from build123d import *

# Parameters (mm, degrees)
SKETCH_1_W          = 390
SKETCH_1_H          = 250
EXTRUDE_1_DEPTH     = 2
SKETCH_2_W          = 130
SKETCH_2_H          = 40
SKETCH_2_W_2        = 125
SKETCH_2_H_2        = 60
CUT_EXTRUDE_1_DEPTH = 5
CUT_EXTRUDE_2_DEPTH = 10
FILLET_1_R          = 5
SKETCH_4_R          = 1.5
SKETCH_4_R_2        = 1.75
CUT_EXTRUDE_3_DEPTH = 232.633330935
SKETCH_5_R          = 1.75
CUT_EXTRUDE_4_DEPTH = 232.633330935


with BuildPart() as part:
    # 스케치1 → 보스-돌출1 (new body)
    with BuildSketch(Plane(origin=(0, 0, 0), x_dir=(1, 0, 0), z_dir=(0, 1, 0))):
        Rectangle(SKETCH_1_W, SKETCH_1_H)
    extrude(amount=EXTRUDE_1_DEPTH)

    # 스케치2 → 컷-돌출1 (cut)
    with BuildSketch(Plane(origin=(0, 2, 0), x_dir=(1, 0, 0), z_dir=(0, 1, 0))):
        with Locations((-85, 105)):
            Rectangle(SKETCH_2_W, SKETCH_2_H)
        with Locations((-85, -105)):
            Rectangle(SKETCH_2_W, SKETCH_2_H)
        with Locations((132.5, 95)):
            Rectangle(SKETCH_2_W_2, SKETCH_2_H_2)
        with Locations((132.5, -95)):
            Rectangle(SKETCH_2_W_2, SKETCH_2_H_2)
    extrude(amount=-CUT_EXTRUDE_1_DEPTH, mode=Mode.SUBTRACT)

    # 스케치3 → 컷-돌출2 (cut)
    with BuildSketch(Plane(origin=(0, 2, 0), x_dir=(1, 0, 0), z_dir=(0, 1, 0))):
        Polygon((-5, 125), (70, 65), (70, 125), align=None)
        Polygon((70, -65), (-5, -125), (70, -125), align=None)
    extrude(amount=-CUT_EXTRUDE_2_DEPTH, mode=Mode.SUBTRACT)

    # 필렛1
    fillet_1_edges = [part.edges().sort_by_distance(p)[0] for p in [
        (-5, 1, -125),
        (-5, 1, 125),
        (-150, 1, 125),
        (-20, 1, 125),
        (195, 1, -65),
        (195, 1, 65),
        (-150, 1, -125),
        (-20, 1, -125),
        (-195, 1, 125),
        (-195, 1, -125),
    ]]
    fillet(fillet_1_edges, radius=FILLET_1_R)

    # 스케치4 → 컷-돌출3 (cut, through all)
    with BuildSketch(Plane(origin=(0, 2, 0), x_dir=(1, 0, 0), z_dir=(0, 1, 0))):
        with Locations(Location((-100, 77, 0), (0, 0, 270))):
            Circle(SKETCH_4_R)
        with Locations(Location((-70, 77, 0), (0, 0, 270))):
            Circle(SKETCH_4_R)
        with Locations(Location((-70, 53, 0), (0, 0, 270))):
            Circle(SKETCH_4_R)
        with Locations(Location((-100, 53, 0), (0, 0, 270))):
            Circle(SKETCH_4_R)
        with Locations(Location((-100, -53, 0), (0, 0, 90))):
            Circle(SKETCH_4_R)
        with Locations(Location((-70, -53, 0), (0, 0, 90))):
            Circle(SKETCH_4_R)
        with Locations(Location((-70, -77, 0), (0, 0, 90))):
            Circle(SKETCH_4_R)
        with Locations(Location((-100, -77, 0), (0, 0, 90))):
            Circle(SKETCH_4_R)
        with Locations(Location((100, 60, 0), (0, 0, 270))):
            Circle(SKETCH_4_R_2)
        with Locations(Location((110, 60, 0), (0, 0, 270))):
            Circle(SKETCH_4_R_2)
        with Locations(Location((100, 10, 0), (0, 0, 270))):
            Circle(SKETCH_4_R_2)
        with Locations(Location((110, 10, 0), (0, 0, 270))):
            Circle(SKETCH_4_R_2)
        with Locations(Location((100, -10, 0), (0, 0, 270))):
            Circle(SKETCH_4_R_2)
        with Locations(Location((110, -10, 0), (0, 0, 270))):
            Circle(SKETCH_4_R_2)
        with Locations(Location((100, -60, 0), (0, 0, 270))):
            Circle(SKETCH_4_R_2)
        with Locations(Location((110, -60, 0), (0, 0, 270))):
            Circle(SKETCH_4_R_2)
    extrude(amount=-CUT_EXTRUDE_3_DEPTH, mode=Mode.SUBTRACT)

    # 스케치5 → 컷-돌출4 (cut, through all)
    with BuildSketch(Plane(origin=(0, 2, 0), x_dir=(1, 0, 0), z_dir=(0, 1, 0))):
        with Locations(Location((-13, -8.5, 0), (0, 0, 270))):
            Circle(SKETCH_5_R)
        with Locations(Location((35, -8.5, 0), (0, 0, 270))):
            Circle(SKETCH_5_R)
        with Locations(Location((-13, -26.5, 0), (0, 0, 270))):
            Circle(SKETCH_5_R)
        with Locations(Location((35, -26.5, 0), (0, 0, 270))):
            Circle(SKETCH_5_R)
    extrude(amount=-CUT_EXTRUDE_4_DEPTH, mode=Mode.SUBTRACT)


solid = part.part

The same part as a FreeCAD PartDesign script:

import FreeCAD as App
import Part
import Sketcher

V = App.Vector
Q = App.Units.Quantity


def edges_at(feature, points):
    """Names of the edges that pass closest to the given points."""
    edges = feature.Shape.Edges
    near = lambda p: min(range(len(edges)), key=lambda i: edges[i].distToShape(Part.Vertex(*p))[0])
    return sorted({f"Edge{near(p) + 1}" for p in points})

doc = App.newDocument("Part")
params = doc.addObject("Spreadsheet::Sheet", "Params")
for row, (alias, value) in enumerate([
    ("sketch1_width", "390 mm"),
    ("sketch1_height", "250 mm"),
    ("pad1_length", "2 mm"),
    ("sketch2_width", "130 mm"),
    ("sketch2_width2", "125 mm"),
    ("sketch2_height", "40 mm"),
    ("sketch2_height2", "60 mm"),
    ("pocket1_length", "5 mm"),
    ("sketch3_width", "75 mm"),
    ("sketch3_height", "60 mm"),
    ("pocket2_length", "10 mm"),
    ("fillet_radius", "5 mm"),
    ("sketch4_diameter", "3 mm"),
    ("sketch4_diameter2", "3.5 mm"),
    ("sketch5_diameter", "3.5 mm"),
], start=1):
    params.set(f"A{row}", alias)
    params.set(f"B{row}", "=" + value)
    params.setAlias(f"B{row}", alias)

body = doc.addObject("PartDesign::Body", "Body")

sketch1 = body.newObject("Sketcher::SketchObject", "Sketch")
sketch1.AttachmentSupport = (doc.getObject("XZ_Plane"), [""])
sketch1.MapMode = "FlatFace"
sketch1.addGeometry(Part.LineSegment(V(-195, -125, 0), V(-195, 125, 0)), False)
sketch1.addGeometry(Part.LineSegment(V(-195, 125, 0), V(195, 125, 0)), False)
sketch1.addGeometry(Part.LineSegment(V(195, 125, 0), V(195, -125, 0)), False)
sketch1.addGeometry(Part.LineSegment(V(195, -125, 0), V(-195, -125, 0)), False)
sketch1.addConstraint(Sketcher.Constraint("Coincident", 0, 2, 1, 1))
sketch1.addConstraint(Sketcher.Constraint("Coincident", 1, 2, 2, 1))
sketch1.addConstraint(Sketcher.Constraint("Coincident", 2, 2, 3, 1))
sketch1.addConstraint(Sketcher.Constraint("Coincident", 3, 2, 0, 1))
sketch1.addConstraint(Sketcher.Constraint("Vertical", 0))
sketch1.addConstraint(Sketcher.Constraint("Horizontal", 1))
sketch1.addConstraint(Sketcher.Constraint("Vertical", 2))
sketch1.addConstraint(Sketcher.Constraint("Horizontal", 3))
sketch1.addConstraint(Sketcher.Constraint("Symmetric", 0, 2, 2, 2, -1, 1))
sketch1.addConstraint(Sketcher.Constraint("DistanceX", 1, 1, 1, 2, Q("390 mm")))
sketch1.addConstraint(Sketcher.Constraint("DistanceY", 0, 1, 0, 2, Q("250 mm")))
sketch1.setExpression("Constraints[9]", "Params.sketch1_width")
sketch1.setExpression("Constraints[10]", "Params.sketch1_height")
pad1 = body.newObject("PartDesign::Pad", "Pad")
pad1.Profile = sketch1
pad1.setExpression("Length", "Params.pad1_length")
pad1.Reversed = True

sketch2 = body.newObject("Sketcher::SketchObject", "Sketch001")
sketch2.AttachmentSupport = (doc.getObject("XZ_Plane"), [""])
sketch2.MapMode = "FlatFace"
sketch2.AttachmentOffset = App.Placement(V(0, 0, -2), App.Rotation())
sketch2.addGeometry(Part.LineSegment(V(-150, -125, 0), V(-150, -85, 0)), False)
sketch2.addGeometry(Part.LineSegment(V(-150, -85, 0), V(-20, -85, 0)), False)
sketch2.addGeometry(Part.LineSegment(V(-20, -85, 0), V(-20, -125, 0)), False)
sketch2.addGeometry(Part.LineSegment(V(-20, -125, 0), V(-150, -125, 0)), False)
sketch2.addGeometry(Part.LineSegment(V(-150, 85, 0), V(-150, 125, 0)), False)
sketch2.addGeometry(Part.LineSegment(V(-150, 125, 0), V(-20, 125, 0)), False)
sketch2.addGeometry(Part.LineSegment(V(-20, 125, 0), V(-20, 85, 0)), False)
sketch2.addGeometry(Part.LineSegment(V(-20, 85, 0), V(-150, 85, 0)), False)
sketch2.addGeometry(Part.LineSegment(V(70, -125, 0), V(70, -65, 0)), False)
sketch2.addGeometry(Part.LineSegment(V(70, -65, 0), V(195, -65, 0)), False)
sketch2.addGeometry(Part.LineSegment(V(195, -65, 0), V(195, -125, 0)), False)
sketch2.addGeometry(Part.LineSegment(V(195, -125, 0), V(70, -125, 0)), False)
sketch2.addGeometry(Part.LineSegment(V(70, 65, 0), V(70, 125, 0)), False)
sketch2.addGeometry(Part.LineSegment(V(70, 125, 0), V(195, 125, 0)), False)
sketch2.addGeometry(Part.LineSegment(V(195, 125, 0), V(195, 65, 0)), False)
sketch2.addGeometry(Part.LineSegment(V(195, 65, 0), V(70, 65, 0)), False)
sketch2.addConstraint(Sketcher.Constraint("Coincident", 0, 2, 1, 1))
sketch2.addConstraint(Sketcher.Constraint("Coincident", 1, 2, 2, 1))
sketch2.addConstraint(Sketcher.Constraint("Coincident", 2, 2, 3, 1))
sketch2.addConstraint(Sketcher.Constraint("Coincident", 3, 2, 0, 1))
sketch2.addConstraint(Sketcher.Constraint("Coincident", 4, 2, 5, 1))
sketch2.addConstraint(Sketcher.Constraint("Coincident", 5, 2, 6, 1))
sketch2.addConstraint(Sketcher.Constraint("Coincident", 6, 2, 7, 1))
sketch2.addConstraint(Sketcher.Constraint("Coincident", 7, 2, 4, 1))
sketch2.addConstraint(Sketcher.Constraint("Coincident", 8, 2, 9, 1))
sketch2.addConstraint(Sketcher.Constraint("Coincident", 9, 2, 10, 1))
sketch2.addConstraint(Sketcher.Constraint("Coincident", 10, 2, 11, 1))
sketch2.addConstraint(Sketcher.Constraint("Coincident", 11, 2, 8, 1))
sketch2.addConstraint(Sketcher.Constraint("Coincident", 12, 2, 13, 1))
sketch2.addConstraint(Sketcher.Constraint("Coincident", 13, 2, 14, 1))
sketch2.addConstraint(Sketcher.Constraint("Coincident", 14, 2, 15, 1))
sketch2.addConstraint(Sketcher.Constraint("Coincident", 15, 2, 12, 1))
sketch2.addConstraint(Sketcher.Constraint("Vertical", 0))
sketch2.addConstraint(Sketcher.Constraint("Horizontal", 1))
sketch2.addConstraint(Sketcher.Constraint("Vertical", 2))
sketch2.addConstraint(Sketcher.Constraint("Horizontal", 3))
sketch2.addConstraint(Sketcher.Constraint("Vertical", 4))
sketch2.addConstraint(Sketcher.Constraint("Horizontal", 5))
sketch2.addConstraint(Sketcher.Constraint("Vertical", 6))
sketch2.addConstraint(Sketcher.Constraint("Horizontal", 7))
sketch2.addConstraint(Sketcher.Constraint("Vertical", 8))
sketch2.addConstraint(Sketcher.Constraint("Horizontal", 9))
sketch2.addConstraint(Sketcher.Constraint("Vertical", 10))
sketch2.addConstraint(Sketcher.Constraint("Horizontal", 11))
sketch2.addConstraint(Sketcher.Constraint("Vertical", 12))
sketch2.addConstraint(Sketcher.Constraint("Horizontal", 13))
sketch2.addConstraint(Sketcher.Constraint("Vertical", 14))
sketch2.addConstraint(Sketcher.Constraint("Horizontal", 15))
sketch2.addConstraint(Sketcher.Constraint("Symmetric", 3, 2, 4, 2, -1))
sketch2.addConstraint(Sketcher.Constraint("Symmetric", 1, 2, 6, 2, -1))
sketch2.addConstraint(Sketcher.Constraint("Symmetric", 11, 2, 12, 2, -1))
sketch2.addConstraint(Sketcher.Constraint("Symmetric", 9, 2, 14, 2, -1))
sketch2.addConstraint(Sketcher.Constraint("Horizontal", 3, 2, 10, 2))
sketch2.addConstraint(Sketcher.Constraint("DistanceX", 1, 1, 1, 2, Q("130 mm")))
sketch2.addConstraint(Sketcher.Constraint("DistanceX", 9, 1, 9, 2, Q("125 mm")))
sketch2.addConstraint(Sketcher.Constraint("DistanceY", 0, 1, 0, 2, Q("40 mm")))
sketch2.addConstraint(Sketcher.Constraint("DistanceY", 8, 1, 8, 2, Q("60 mm")))
sketch2.addConstraint(Sketcher.Constraint("DistanceX", 0, 2, -1, 1, Q("150 mm")))
sketch2.addConstraint(Sketcher.Constraint("DistanceY", 0, 2, -1, 1, Q("85 mm")))
sketch2.addConstraint(Sketcher.Constraint("DistanceX", -1, 1, 8, 2, Q("70 mm")))
sketch2.setExpression("Constraints[37]", "Params.sketch2_width")
sketch2.setExpression("Constraints[38]", "Params.sketch2_width2")
sketch2.setExpression("Constraints[39]", "Params.sketch2_height")
sketch2.setExpression("Constraints[40]", "Params.sketch2_height2")
pocket1 = body.newObject("PartDesign::Pocket", "Pocket")
pocket1.Profile = sketch2
pocket1.setExpression("Length", "Params.pocket1_length")
pocket1.Reversed = True

sketch3 = body.newObject("Sketcher::SketchObject", "Sketch002")
sketch3.AttachmentSupport = (doc.getObject("XZ_Plane"), [""])
sketch3.MapMode = "FlatFace"
sketch3.AttachmentOffset = App.Placement(V(0, 0, -2), App.Rotation())
sketch3.addGeometry(Part.LineSegment(V(-5, -125, 0), V(70, -65, 0)), False)
sketch3.addGeometry(Part.LineSegment(V(70, -65, 0), V(70, -125, 0)), False)
sketch3.addGeometry(Part.LineSegment(V(70, -125, 0), V(-5, -125, 0)), False)
sketch3.addGeometry(Part.LineSegment(V(70, 65, 0), V(-5, 125, 0)), False)
sketch3.addGeometry(Part.LineSegment(V(-5, 125, 0), V(70, 125, 0)), False)
sketch3.addGeometry(Part.LineSegment(V(70, 125, 0), V(70, 65, 0)), False)
sketch3.addConstraint(Sketcher.Constraint("Coincident", 0, 2, 1, 1))
sketch3.addConstraint(Sketcher.Constraint("Coincident", 1, 2, 2, 1))
sketch3.addConstraint(Sketcher.Constraint("Coincident", 2, 2, 0, 1))
sketch3.addConstraint(Sketcher.Constraint("Coincident", 3, 2, 4, 1))
sketch3.addConstraint(Sketcher.Constraint("Coincident", 4, 2, 5, 1))
sketch3.addConstraint(Sketcher.Constraint("Coincident", 5, 2, 3, 1))
sketch3.addConstraint(Sketcher.Constraint("Vertical", 1))
sketch3.addConstraint(Sketcher.Constraint("Horizontal", 2))
sketch3.addConstraint(Sketcher.Constraint("Horizontal", 4))
sketch3.addConstraint(Sketcher.Constraint("Vertical", 5))
sketch3.addConstraint(Sketcher.Constraint("Symmetric", 2, 2, 3, 2, -1))
sketch3.addConstraint(Sketcher.Constraint("Symmetric", 0, 2, 5, 2, -1))
sketch3.addConstraint(Sketcher.Constraint("DistanceX", 2, 2, 2, 1, Q("75 mm")))
sketch3.addConstraint(Sketcher.Constraint("DistanceY", 1, 2, 1, 1, Q("60 mm")))
sketch3.addConstraint(Sketcher.Constraint("DistanceX", -1, 1, 0, 2, Q("70 mm")))
sketch3.addConstraint(Sketcher.Constraint("DistanceY", 0, 2, -1, 1, Q("65 mm")))
sketch3.setExpression("Constraints[12]", "Params.sketch3_width")
sketch3.setExpression("Constraints[13]", "Params.sketch3_height")
pocket2 = body.newObject("PartDesign::Pocket", "Pocket001")
pocket2.Profile = sketch3
pocket2.setExpression("Length", "Params.pocket2_length")
pocket2.Reversed = True
doc.recompute()

fillet = body.newObject("PartDesign::Fillet", "Fillet")
fillet.Base = (pocket2, edges_at(pocket2, [
    (-5, 1, -125),
    (-5, 1, 125),
    (-150, 1, 125),
    (-20, 1, 125),
    (195, 1, -65),
    (195, 1, 65),
    (-150, 1, -125),
    (-20, 1, -125),
    (-195, 1, 125),
    (-195, 1, -125),
]))
fillet.setExpression("Radius", "Params.fillet_radius")

sketch4 = body.newObject("Sketcher::SketchObject", "Sketch003")
sketch4.AttachmentSupport = (doc.getObject("XZ_Plane"), [""])
sketch4.MapMode = "FlatFace"
sketch4.AttachmentOffset = App.Placement(V(0, 0, -2), App.Rotation())
sketch4.addGeometry(Part.Circle(V(-100, -77, 0), V(0, 0, 1), 1.5), False)
sketch4.addGeometry(Part.Circle(V(-70, -77, 0), V(0, 0, 1), 1.5), False)
sketch4.addGeometry(Part.Circle(V(-70, -53, 0), V(0, 0, 1), 1.5), False)
sketch4.addGeometry(Part.Circle(V(-100, -53, 0), V(0, 0, 1), 1.5), False)
sketch4.addGeometry(Part.Circle(V(-100, 53, 0), V(0, 0, 1), 1.5), False)
sketch4.addGeometry(Part.Circle(V(-70, 53, 0), V(0, 0, 1), 1.5), False)
sketch4.addGeometry(Part.Circle(V(-70, 77, 0), V(0, 0, 1), 1.5), False)
sketch4.addGeometry(Part.Circle(V(-100, 77, 0), V(0, 0, 1), 1.5), False)
sketch4.addGeometry(Part.Circle(V(100, -60, 0), V(0, 0, 1), 1.8), False)
sketch4.addGeometry(Part.Circle(V(110, -60, 0), V(0, 0, 1), 1.8), False)
sketch4.addGeometry(Part.Circle(V(100, -10, 0), V(0, 0, 1), 1.8), False)
sketch4.addGeometry(Part.Circle(V(110, -10, 0), V(0, 0, 1), 1.8), False)
sketch4.addGeometry(Part.Circle(V(100, 10, 0), V(0, 0, 1), 1.8), False)
sketch4.addGeometry(Part.Circle(V(110, 10, 0), V(0, 0, 1), 1.8), False)
sketch4.addGeometry(Part.Circle(V(100, 60, 0), V(0, 0, 1), 1.8), False)
sketch4.addGeometry(Part.Circle(V(110, 60, 0), V(0, 0, 1), 1.8), False)
sketch4.addConstraint(Sketcher.Constraint("Equal", 0, 1))
sketch4.addConstraint(Sketcher.Constraint("Equal", 1, 2))
sketch4.addConstraint(Sketcher.Constraint("Equal", 2, 3))
sketch4.addConstraint(Sketcher.Constraint("Equal", 3, 4))
sketch4.addConstraint(Sketcher.Constraint("Equal", 4, 5))
sketch4.addConstraint(Sketcher.Constraint("Equal", 5, 6))
sketch4.addConstraint(Sketcher.Constraint("Equal", 6, 7))
sketch4.addConstraint(Sketcher.Constraint("Equal", 8, 9))
sketch4.addConstraint(Sketcher.Constraint("Equal", 9, 10))
sketch4.addConstraint(Sketcher.Constraint("Equal", 10, 11))
sketch4.addConstraint(Sketcher.Constraint("Equal", 11, 12))
sketch4.addConstraint(Sketcher.Constraint("Equal", 12, 13))
sketch4.addConstraint(Sketcher.Constraint("Equal", 13, 14))
sketch4.addConstraint(Sketcher.Constraint("Equal", 14, 15))
sketch4.addConstraint(Sketcher.Constraint("Symmetric", 3, 3, 4, 3, -1))
sketch4.addConstraint(Sketcher.Constraint("Symmetric", 2, 3, 5, 3, -1))
sketch4.addConstraint(Sketcher.Constraint("Symmetric", 1, 3, 6, 3, -1))
sketch4.addConstraint(Sketcher.Constraint("Symmetric", 0, 3, 7, 3, -1))
sketch4.addConstraint(Sketcher.Constraint("Symmetric", 10, 3, 12, 3, -1))
sketch4.addConstraint(Sketcher.Constraint("Symmetric", 11, 3, 13, 3, -1))
sketch4.addConstraint(Sketcher.Constraint("Symmetric", 8, 3, 14, 3, -1))
sketch4.addConstraint(Sketcher.Constraint("Symmetric", 9, 3, 15, 3, -1))
sketch4.addConstraint(Sketcher.Constraint("Horizontal", 0, 3, 1, 3))
sketch4.addConstraint(Sketcher.Constraint("Horizontal", 2, 3, 3, 3))
sketch4.addConstraint(Sketcher.Constraint("Horizontal", 8, 3, 9, 3))
sketch4.addConstraint(Sketcher.Constraint("Horizontal", 10, 3, 11, 3))
sketch4.addConstraint(Sketcher.Constraint("Vertical", 1, 3, 2, 3))
sketch4.addConstraint(Sketcher.Constraint("Vertical", 0, 3, 3, 3))
sketch4.addConstraint(Sketcher.Constraint("Vertical", 8, 3, 10, 3))
sketch4.addConstraint(Sketcher.Constraint("Vertical", 9, 3, 11, 3))
sketch4.addConstraint(Sketcher.Constraint("Diameter", 0, Q("3 mm")))
sketch4.addConstraint(Sketcher.Constraint("Diameter", 8, Q("3.5 mm")))
sketch4.addConstraint(Sketcher.Constraint("DistanceX", 0, 3, -1, 1, Q("100 mm")))
sketch4.addConstraint(Sketcher.Constraint("DistanceY", 0, 3, -1, 1, Q("77 mm")))
sketch4.addConstraint(Sketcher.Constraint("DistanceX", 1, 3, -1, 1, Q("70 mm")))
sketch4.addConstraint(Sketcher.Constraint("DistanceY", 2, 3, -1, 1, Q("53 mm")))
sketch4.addConstraint(Sketcher.Constraint("DistanceX", -1, 1, 8, 3, Q("100 mm")))
sketch4.addConstraint(Sketcher.Constraint("DistanceY", 8, 3, -1, 1, Q("60 mm")))
sketch4.addConstraint(Sketcher.Constraint("DistanceX", -1, 1, 9, 3, Q("110 mm")))
sketch4.addConstraint(Sketcher.Constraint("DistanceY", 10, 3, -1, 1, Q("10 mm")))
sketch4.setExpression("Constraints[30]", "Params.sketch4_diameter")
sketch4.setExpression("Constraints[31]", "Params.sketch4_diameter2")
pocket3 = body.newObject("PartDesign::Pocket", "Pocket002")
pocket3.Profile = sketch4
pocket3.Type = "ThroughAll"
pocket3.Reversed = True

sketch5 = body.newObject("Sketcher::SketchObject", "Sketch004")
sketch5.AttachmentSupport = (doc.getObject("XZ_Plane"), [""])
sketch5.MapMode = "FlatFace"
sketch5.AttachmentOffset = App.Placement(V(0, 0, -2), App.Rotation())
sketch5.addGeometry(Part.Circle(V(-13, 8.5, 0), V(0, 0, 1), 1.8), False)
sketch5.addGeometry(Part.Circle(V(35, 8.5, 0), V(0, 0, 1), 1.8), False)
sketch5.addGeometry(Part.Circle(V(-13, 26.5, 0), V(0, 0, 1), 1.8), False)
sketch5.addGeometry(Part.Circle(V(35, 26.5, 0), V(0, 0, 1), 1.8), False)
sketch5.addConstraint(Sketcher.Constraint("Equal", 0, 1))
sketch5.addConstraint(Sketcher.Constraint("Equal", 1, 2))
sketch5.addConstraint(Sketcher.Constraint("Equal", 2, 3))
sketch5.addConstraint(Sketcher.Constraint("Horizontal", 0, 3, 1, 3))
sketch5.addConstraint(Sketcher.Constraint("Horizontal", 2, 3, 3, 3))
sketch5.addConstraint(Sketcher.Constraint("Vertical", 0, 3, 2, 3))
sketch5.addConstraint(Sketcher.Constraint("Vertical", 1, 3, 3, 3))
sketch5.addConstraint(Sketcher.Constraint("Diameter", 0, Q("3.5 mm")))
sketch5.addConstraint(Sketcher.Constraint("DistanceX", 0, 3, -1, 1, Q("13 mm")))
sketch5.addConstraint(Sketcher.Constraint("DistanceX", -1, 1, 1, 3, Q("35 mm")))
sketch5.addConstraint(Sketcher.Constraint("DistanceY", 0, 3, 2, 3, Q("18 mm")))
sketch5.addConstraint(Sketcher.Constraint("DistanceY", -1, 1, 0, 3, Q("8.5 mm")))
sketch5.setExpression("Constraints[7]", "Params.sketch5_diameter")
pocket4 = body.newObject("PartDesign::Pocket", "Pocket003")
pocket4.Profile = sketch5
pocket4.Type = "ThroughAll"
pocket4.Reversed = True

doc.recompute()
